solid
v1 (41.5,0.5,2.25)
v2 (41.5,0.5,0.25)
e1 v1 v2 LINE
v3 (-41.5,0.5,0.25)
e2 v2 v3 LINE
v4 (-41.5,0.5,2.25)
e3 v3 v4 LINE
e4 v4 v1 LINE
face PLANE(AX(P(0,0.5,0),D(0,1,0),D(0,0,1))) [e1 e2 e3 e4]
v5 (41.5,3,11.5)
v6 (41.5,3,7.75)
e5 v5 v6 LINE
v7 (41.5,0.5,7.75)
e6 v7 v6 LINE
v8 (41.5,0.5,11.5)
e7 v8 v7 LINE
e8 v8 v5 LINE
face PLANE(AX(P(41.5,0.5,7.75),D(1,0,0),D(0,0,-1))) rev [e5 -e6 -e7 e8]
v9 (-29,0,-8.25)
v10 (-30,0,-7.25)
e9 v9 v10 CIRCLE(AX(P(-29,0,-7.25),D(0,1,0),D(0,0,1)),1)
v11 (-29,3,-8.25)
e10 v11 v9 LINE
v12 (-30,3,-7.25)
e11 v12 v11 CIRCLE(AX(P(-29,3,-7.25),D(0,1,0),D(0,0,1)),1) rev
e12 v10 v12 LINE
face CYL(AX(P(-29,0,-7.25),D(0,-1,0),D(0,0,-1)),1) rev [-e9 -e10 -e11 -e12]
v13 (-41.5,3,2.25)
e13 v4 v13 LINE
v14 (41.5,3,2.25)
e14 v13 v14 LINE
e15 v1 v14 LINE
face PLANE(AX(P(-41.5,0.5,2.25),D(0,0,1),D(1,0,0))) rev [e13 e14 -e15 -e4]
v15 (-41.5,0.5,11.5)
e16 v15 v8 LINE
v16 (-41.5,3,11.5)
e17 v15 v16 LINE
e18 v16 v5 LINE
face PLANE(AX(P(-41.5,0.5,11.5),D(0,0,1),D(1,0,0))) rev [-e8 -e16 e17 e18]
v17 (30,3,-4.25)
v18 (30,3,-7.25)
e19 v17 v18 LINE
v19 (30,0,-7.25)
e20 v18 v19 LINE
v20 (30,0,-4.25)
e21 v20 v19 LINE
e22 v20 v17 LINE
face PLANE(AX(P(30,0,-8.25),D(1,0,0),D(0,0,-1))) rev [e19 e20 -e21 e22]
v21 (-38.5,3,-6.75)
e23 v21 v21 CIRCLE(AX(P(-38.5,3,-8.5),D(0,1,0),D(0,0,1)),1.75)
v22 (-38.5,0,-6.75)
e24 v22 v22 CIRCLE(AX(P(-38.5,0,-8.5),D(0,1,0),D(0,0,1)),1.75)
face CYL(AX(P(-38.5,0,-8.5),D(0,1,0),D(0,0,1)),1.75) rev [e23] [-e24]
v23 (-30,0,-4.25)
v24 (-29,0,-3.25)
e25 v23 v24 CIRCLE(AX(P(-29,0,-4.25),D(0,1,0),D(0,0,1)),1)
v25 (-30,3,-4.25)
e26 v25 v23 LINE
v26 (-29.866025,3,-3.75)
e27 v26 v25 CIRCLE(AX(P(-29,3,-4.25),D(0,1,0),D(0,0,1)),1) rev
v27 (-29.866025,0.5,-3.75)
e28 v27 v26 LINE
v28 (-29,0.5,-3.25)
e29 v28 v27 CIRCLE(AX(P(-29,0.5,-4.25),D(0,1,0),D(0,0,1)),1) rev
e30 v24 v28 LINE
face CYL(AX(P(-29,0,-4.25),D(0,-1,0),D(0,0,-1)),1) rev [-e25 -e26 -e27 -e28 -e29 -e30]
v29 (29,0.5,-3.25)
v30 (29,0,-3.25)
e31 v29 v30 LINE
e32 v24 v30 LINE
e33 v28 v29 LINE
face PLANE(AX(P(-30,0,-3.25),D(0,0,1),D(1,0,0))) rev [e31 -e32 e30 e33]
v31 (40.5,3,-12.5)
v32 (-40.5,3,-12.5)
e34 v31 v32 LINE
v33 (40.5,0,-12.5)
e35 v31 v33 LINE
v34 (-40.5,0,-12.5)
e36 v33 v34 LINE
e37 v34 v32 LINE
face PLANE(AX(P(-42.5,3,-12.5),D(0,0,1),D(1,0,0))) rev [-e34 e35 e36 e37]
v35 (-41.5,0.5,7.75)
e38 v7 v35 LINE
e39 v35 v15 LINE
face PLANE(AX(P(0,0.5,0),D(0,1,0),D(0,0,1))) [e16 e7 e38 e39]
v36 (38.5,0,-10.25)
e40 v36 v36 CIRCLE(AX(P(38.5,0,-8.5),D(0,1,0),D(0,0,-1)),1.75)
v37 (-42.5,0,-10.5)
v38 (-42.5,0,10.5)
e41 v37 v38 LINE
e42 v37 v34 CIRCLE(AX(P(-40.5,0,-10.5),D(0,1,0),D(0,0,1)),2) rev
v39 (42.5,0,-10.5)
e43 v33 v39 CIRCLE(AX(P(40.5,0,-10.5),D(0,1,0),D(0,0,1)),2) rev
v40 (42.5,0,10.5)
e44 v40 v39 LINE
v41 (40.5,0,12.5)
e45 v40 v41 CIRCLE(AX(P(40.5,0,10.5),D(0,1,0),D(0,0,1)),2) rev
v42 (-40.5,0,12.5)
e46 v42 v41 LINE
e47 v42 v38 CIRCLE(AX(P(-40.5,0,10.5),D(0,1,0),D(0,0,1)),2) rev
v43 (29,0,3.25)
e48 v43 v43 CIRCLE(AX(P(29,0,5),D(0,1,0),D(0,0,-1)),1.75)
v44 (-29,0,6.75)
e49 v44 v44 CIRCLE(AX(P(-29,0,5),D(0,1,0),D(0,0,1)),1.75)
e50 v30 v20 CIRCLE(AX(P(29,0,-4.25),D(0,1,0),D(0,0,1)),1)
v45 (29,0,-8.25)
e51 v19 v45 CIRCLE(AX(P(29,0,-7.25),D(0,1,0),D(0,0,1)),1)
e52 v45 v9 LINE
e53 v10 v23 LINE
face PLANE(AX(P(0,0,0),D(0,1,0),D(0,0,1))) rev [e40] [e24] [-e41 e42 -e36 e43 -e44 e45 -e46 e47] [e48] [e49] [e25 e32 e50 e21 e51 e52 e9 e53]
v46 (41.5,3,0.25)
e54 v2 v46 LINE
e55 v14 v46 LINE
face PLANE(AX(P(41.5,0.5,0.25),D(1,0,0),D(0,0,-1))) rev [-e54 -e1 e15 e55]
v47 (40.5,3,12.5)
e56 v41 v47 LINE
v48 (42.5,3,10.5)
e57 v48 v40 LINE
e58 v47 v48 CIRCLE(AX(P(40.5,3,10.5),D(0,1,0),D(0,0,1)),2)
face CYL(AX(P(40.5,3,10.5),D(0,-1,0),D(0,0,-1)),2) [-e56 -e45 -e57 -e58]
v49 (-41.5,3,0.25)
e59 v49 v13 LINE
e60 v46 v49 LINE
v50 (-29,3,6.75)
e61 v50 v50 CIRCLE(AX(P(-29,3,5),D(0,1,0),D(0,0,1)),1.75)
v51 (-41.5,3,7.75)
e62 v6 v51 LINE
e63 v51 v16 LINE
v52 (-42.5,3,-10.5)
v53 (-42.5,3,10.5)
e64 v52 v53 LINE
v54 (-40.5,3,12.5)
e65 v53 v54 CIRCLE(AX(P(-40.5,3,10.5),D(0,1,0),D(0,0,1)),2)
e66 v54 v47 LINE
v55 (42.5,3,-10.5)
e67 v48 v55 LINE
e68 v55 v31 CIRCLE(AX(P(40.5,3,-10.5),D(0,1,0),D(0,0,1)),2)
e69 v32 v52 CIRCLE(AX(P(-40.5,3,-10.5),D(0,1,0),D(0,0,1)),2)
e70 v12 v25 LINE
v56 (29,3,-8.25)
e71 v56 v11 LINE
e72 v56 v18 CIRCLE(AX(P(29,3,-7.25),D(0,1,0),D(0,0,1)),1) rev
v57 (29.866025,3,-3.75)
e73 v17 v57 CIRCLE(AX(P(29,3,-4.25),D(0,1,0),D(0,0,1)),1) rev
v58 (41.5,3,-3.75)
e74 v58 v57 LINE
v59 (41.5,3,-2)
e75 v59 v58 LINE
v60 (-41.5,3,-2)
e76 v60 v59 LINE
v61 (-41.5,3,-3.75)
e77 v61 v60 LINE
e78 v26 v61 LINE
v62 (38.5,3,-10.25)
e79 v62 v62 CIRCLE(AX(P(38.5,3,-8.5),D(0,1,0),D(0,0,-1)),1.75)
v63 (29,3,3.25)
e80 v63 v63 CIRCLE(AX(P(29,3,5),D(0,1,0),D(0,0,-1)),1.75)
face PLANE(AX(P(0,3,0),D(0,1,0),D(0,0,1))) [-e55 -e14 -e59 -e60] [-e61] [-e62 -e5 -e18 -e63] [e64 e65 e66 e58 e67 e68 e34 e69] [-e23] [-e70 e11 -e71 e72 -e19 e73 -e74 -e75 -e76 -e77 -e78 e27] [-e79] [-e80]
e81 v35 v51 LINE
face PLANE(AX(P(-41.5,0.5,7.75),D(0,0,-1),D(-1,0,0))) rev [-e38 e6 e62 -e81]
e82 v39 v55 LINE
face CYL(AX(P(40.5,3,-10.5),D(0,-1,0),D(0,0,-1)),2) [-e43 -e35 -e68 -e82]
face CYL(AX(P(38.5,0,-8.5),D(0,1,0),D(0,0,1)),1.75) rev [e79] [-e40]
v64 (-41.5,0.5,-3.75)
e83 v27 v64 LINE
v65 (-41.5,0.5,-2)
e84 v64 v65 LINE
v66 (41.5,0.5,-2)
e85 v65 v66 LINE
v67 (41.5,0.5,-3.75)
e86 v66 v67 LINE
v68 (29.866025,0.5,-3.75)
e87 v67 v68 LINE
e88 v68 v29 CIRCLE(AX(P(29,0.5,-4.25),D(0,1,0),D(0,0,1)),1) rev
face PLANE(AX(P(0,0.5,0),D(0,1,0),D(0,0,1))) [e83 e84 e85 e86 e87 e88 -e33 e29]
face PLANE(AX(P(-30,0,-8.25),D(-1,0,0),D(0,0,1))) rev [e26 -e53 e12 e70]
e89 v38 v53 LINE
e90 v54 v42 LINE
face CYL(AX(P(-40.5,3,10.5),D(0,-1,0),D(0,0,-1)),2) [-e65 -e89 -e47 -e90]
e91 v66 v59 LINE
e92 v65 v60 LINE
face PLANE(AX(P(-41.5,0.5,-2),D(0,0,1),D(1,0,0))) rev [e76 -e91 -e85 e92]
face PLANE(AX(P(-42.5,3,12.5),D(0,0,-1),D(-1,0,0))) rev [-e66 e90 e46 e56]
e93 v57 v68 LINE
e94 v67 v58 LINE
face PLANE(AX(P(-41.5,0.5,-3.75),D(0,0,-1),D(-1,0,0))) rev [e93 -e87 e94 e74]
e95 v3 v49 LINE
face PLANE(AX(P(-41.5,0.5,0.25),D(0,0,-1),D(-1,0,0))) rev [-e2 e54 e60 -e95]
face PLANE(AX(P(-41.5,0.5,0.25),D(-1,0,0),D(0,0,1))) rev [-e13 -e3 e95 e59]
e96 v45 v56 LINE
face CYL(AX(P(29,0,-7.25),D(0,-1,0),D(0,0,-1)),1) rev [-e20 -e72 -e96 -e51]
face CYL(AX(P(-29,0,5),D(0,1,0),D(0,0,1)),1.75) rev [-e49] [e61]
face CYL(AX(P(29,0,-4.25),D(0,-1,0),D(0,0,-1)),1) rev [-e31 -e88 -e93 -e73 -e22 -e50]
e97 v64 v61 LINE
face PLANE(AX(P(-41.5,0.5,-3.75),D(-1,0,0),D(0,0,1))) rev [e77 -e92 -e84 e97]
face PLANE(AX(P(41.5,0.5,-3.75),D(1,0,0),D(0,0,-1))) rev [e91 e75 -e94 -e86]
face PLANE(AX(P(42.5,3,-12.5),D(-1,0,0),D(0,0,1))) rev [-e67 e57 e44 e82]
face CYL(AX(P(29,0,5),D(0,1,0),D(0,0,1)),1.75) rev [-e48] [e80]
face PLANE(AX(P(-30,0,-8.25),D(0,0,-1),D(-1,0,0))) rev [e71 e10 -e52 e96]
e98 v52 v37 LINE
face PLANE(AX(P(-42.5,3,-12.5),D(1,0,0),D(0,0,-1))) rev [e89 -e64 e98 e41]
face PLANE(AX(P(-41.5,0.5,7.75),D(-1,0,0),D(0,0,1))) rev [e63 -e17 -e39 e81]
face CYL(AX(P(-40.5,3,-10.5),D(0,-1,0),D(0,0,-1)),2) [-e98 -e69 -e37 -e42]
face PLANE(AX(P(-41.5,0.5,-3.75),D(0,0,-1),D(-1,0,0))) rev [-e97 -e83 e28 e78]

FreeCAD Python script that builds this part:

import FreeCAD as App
import Part
import Sketcher

V = App.Vector
Q = App.Units.Quantity


def edges_at(feature, points):
    """Names of the edges that pass closest to the given points."""
    edges = feature.Shape.Edges
    near = lambda p: min(range(len(edges)), key=lambda i: edges[i].distToShape(Part.Vertex(*p))[0])
    return sorted({f"Edge{near(p) + 1}" for p in points})


def add_polygon(sketch, points):
    """Adds a closed chain of lines whose ends are joined by coincident constraints."""
    first, n = sketch.GeometryCount, len(points)
    for a, b in zip(points, points[1:] + points[:1]):
        sketch.addGeometry(Part.LineSegment(App.Vector(*a, 0), App.Vector(*b, 0)), False)
    for i in range(n):
        sketch.addConstraint(Sketcher.Constraint("Coincident", first + i, 2, first + (i + 1) % n, 1))

doc = App.newDocument("Part")
params = doc.addObject("Spreadsheet::Sheet", "Params")
for row, (alias, value) in enumerate([
    ("sketch1_width", "85 mm"),
    ("sketch1_height", "25 mm"),
    ("pad1_length", "3 mm"),
    ("sketch2_width", "83 mm"),
    ("sketch2_height", "2 mm"),
    ("sketch2_height2", "3.75 mm"),
    ("sketch2_height3", "1.75 mm"),
    ("pocket1_length", "2.5 mm"),
    ("sketch3_diameter", "3.5 mm"),
    ("sketch4_width", "60 mm"),
    ("sketch4_height", "5 mm"),
    ("fillet_radius", "1 mm"),
    ("fillet2_radius", "2 mm"),
], start=1):
    params.set(f"A{row}", alias)
    params.set(f"B{row}", "=" + value)
    params.setAlias(f"B{row}", alias)

body = doc.addObject("PartDesign::Body", "Body")

# Sketch on XZ plane
sketch1 = doc.addObject("Sketcher::SketchObject", "Sketch")
body.addObject(sketch1)
sketch1.AttachmentSupport = (doc.XZ_Plane, [""])
sketch1.MapMode = "FlatFace"
add_polygon(sketch1, [(-42, -12), (-42, 12), (42, 12), (42, -12)])  # lines 0-3
sketch1.addConstraint([
    Sketcher.Constraint("Vertical", 0),
    Sketcher.Constraint("Horizontal", 1),
    Sketcher.Constraint("Vertical", 2),
    Sketcher.Constraint("Horizontal", 3),
    Sketcher.Constraint("Symmetric", 0, 2, 2, 2, -1, 1),
    Sketcher.Constraint("DistanceX", 1, 1, 1, 2, Q("85 mm")),
    Sketcher.Constraint("DistanceY", 0, 1, 0, 2, Q("25 mm")),
])
sketch1.setExpression("Constraints[9]", "Params.sketch1_width")
sketch1.setExpression("Constraints[10]", "Params.sketch1_height")
pad1 = doc.addObject("PartDesign::Pad", "Pad")
body.addObject(pad1)
pad1.Profile = sketch1
pad1.setExpression("Length", "Params.pad1_length")
pad1.Reversed = True

# Sketch on XZ plane
sketch2 = doc.addObject("Sketcher::SketchObject", "Sketch001")
body.addObject(sketch2)
sketch2.AttachmentSupport = (doc.XZ_Plane, [""])
sketch2.MapMode = "FlatFace"
sketch2.AttachmentOffset = App.Placement(V(0, 0, -3), App.Rotation())
add_polygon(sketch2, [(-41.5, 7.8), (-41.5, 11.5), (41.5, 11.5), (41.5, 7.8)])  # lines 0-3
add_polygon(sketch2, [(-41.5, 0.2), (-41.5, 2.2), (41.5, 2.2), (41.5, 0.2)])  # lines 4-7
add_polygon(sketch2, [(-41.5, -3.8), (-41.5, -2), (41.5, -2), (41.5, -3.8)])  # lines 8-11
sketch2.addConstraint([
    Sketcher.Constraint("Vertical", 0),
    Sketcher.Constraint("Horizontal", 1),
    Sketcher.Constraint("Vertical", 2),
    Sketcher.Constraint("Horizontal", 3),
    Sketcher.Constraint("Vertical", 4),
    Sketcher.Constraint("Horizontal", 5),
    Sketcher.Constraint("Vertical", 6),
    Sketcher.Constraint("Horizontal", 7),
    Sketcher.Constraint("Vertical", 8),
    Sketcher.Constraint("Horizontal", 9),
    Sketcher.Constraint("Vertical", 10),
    Sketcher.Constraint("Horizontal", 11),
    Sketcher.Constraint("Vertical", 3, 2, 4, 2),
    Sketcher.Constraint("Vertical", 2, 2, 5, 2),
    Sketcher.Constraint("Vertical", 7, 2, 8, 2),
    Sketcher.Constraint("Vertical", 6, 2, 9, 2),
    Sketcher.Constraint("DistanceX", 1, 1, 1, 2, Q("83 mm")),
    Sketcher.Constraint("DistanceY", 4, 1, 4, 2, Q("2 mm")),
    Sketcher.Constraint("DistanceY", 8, 2, -1, 1, Q("2 mm")),
    Sketcher.Constraint("DistanceY", 10, 2, 6, 2, Q("4 mm")),
    Sketcher.Constraint("DistanceY", 0, 1, 0, 2, Q("3.75 mm")),
    Sketcher.Constraint("DistanceY", 8, 1, 8, 2, Q("1.75 mm")),
    Sketcher.Constraint("DistanceX", 0, 2, -1, 1, Q("41.5 mm")),
    Sketcher.Constraint("DistanceY", -1, 1, 0, 2, Q("11.5 mm")),
])
sketch2.setExpression("Constraints[28]", "Params.sketch2_width")
sketch2.setExpression("Constraints[29]", "Params.sketch2_height")
sketch2.setExpression("Constraints[32]", "Params.sketch2_height2")
sketch2.setExpression("Constraints[33]", "Params.sketch2_height3")
pocket1 = doc.addObject("PartDesign::Pocket", "Pocket")
body.addObject(pocket1)
pocket1.Profile = sketch2
pocket1.setExpression("Length", "Params.pocket1_length")
pocket1.Reversed = True

# Sketch on XZ plane
sketch3 = doc.addObject("Sketcher::SketchObject", "Sketch002")
body.addObject(sketch3)
sketch3.AttachmentSupport = (doc.XZ_Plane, [""])
sketch3.MapMode = "FlatFace"
sketch3.AttachmentOffset = App.Placement(V(0, 0, -3), App.Rotation())
sketch3.addGeometry([
    Part.Circle(V(-38.5, -8.5, 0), V(0, 0, 1), 1.8),
    Part.Circle(V(38.5, -8.5, 0), V(0, 0, 1), 1.8),
    Part.Circle(V(-29, 5, 0), V(0, 0, 1), 1.8),
    Part.Circle(V(29, 5, 0), V(0, 0, 1), 1.8),
], False)
sketch3.addConstraint([
    Sketcher.Constraint("Equal", 0, 1),
    Sketcher.Constraint("Equal", 1, 2),
    Sketcher.Constraint("Equal", 2, 3),
    Sketcher.Constraint("Symmetric", 0, 3, 1, 3, -2),
    Sketcher.Constraint("Symmetric", 2, 3, 3, 3, -2),
    Sketcher.Constraint("Diameter", 0, Q("3.5 mm")),
    Sketcher.Constraint("DistanceX", 2, 3, -1, 1, Q("29 mm")),
    Sketcher.Constraint("DistanceY", -1, 1, 2, 3, Q("5 mm")),
    Sketcher.Constraint("DistanceX", 0, 3, 1, 3, Q("77 mm")),
    Sketcher.Constraint("DistanceY", 0, 3, -1, 1, Q("8.5 mm")),
])
sketch3.setExpression("Constraints[5]", "Params.sketch3_diameter")
pocket2 = doc.addObject("PartDesign::Pocket", "Pocket001")
body.addObject(pocket2)
pocket2.Profile = sketch3
pocket2.Type = "ThroughAll"
pocket2.Reversed = True

# Sketch on XZ plane
sketch4 = doc.addObject("Sketcher::SketchObject", "Sketch003")
body.addObject(sketch4)
sketch4.AttachmentSupport = (doc.XZ_Plane, [""])
sketch4.MapMode = "FlatFace"
sketch4.AttachmentOffset = App.Placement(V(0, 0, -3), App.Rotation())
add_polygon(sketch4, [(-30, -8), (-30, -3), (30, -3), (30, -8)])  # lines 0-3
sketch4.addConstraint([
    Sketcher.Constraint("Vertical", 0),
    Sketcher.Constraint("Horizontal", 1),
    Sketcher.Constraint("Vertical", 2),
    Sketcher.Constraint("Horizontal", 3),
    Sketcher.Constraint("DistanceX", 1, 1, 1, 2, Q("60 mm")),
    Sketcher.Constraint("DistanceY", 0, 1, 0, 2, Q("5 mm")),
    Sketcher.Constraint("DistanceX", 0, 2, -1, 1, Q("30 mm")),
    Sketcher.Constraint("DistanceY", 0, 2, -1, 1, Q("3.25 mm")),
])
sketch4.setExpression("Constraints[8]", "Params.sketch4_width")
sketch4.setExpression("Constraints[9]", "Params.sketch4_height")
pocket3 = doc.addObject("PartDesign::Pocket", "Pocket002")
body.addObject(pocket3)
pocket3.Profile = sketch4
pocket3.Type = "ThroughAll"
pocket3.Reversed = True
doc.recompute()

fillet = doc.addObject("PartDesign::Fillet", "Fillet")
body.addObject(fillet)
fillet.Base = (pocket3, edges_at(pocket3, [
    (30, 0.25, -3.25),
    (30, 1.5, -8.25),
    (-30, 1.5, -8.25),
    (-30, 0.25, -3.25),
]))
fillet.setExpression("Radius", "Params.fillet_radius")
doc.recompute()

fillet2 = doc.addObject("PartDesign::Fillet", "Fillet001")
body.addObject(fillet2)
fillet2.Base = (fillet, edges_at(fillet, [
    (-42.5, 1.5, -12.5),
    (42.5, 1.5, -12.5),
    (42.5, 1.5, 12.5),
    (-42.5, 1.5, 12.5),
]))
fillet2.setExpression("Radius", "Params.fillet2_radius")

doc.recompute()
